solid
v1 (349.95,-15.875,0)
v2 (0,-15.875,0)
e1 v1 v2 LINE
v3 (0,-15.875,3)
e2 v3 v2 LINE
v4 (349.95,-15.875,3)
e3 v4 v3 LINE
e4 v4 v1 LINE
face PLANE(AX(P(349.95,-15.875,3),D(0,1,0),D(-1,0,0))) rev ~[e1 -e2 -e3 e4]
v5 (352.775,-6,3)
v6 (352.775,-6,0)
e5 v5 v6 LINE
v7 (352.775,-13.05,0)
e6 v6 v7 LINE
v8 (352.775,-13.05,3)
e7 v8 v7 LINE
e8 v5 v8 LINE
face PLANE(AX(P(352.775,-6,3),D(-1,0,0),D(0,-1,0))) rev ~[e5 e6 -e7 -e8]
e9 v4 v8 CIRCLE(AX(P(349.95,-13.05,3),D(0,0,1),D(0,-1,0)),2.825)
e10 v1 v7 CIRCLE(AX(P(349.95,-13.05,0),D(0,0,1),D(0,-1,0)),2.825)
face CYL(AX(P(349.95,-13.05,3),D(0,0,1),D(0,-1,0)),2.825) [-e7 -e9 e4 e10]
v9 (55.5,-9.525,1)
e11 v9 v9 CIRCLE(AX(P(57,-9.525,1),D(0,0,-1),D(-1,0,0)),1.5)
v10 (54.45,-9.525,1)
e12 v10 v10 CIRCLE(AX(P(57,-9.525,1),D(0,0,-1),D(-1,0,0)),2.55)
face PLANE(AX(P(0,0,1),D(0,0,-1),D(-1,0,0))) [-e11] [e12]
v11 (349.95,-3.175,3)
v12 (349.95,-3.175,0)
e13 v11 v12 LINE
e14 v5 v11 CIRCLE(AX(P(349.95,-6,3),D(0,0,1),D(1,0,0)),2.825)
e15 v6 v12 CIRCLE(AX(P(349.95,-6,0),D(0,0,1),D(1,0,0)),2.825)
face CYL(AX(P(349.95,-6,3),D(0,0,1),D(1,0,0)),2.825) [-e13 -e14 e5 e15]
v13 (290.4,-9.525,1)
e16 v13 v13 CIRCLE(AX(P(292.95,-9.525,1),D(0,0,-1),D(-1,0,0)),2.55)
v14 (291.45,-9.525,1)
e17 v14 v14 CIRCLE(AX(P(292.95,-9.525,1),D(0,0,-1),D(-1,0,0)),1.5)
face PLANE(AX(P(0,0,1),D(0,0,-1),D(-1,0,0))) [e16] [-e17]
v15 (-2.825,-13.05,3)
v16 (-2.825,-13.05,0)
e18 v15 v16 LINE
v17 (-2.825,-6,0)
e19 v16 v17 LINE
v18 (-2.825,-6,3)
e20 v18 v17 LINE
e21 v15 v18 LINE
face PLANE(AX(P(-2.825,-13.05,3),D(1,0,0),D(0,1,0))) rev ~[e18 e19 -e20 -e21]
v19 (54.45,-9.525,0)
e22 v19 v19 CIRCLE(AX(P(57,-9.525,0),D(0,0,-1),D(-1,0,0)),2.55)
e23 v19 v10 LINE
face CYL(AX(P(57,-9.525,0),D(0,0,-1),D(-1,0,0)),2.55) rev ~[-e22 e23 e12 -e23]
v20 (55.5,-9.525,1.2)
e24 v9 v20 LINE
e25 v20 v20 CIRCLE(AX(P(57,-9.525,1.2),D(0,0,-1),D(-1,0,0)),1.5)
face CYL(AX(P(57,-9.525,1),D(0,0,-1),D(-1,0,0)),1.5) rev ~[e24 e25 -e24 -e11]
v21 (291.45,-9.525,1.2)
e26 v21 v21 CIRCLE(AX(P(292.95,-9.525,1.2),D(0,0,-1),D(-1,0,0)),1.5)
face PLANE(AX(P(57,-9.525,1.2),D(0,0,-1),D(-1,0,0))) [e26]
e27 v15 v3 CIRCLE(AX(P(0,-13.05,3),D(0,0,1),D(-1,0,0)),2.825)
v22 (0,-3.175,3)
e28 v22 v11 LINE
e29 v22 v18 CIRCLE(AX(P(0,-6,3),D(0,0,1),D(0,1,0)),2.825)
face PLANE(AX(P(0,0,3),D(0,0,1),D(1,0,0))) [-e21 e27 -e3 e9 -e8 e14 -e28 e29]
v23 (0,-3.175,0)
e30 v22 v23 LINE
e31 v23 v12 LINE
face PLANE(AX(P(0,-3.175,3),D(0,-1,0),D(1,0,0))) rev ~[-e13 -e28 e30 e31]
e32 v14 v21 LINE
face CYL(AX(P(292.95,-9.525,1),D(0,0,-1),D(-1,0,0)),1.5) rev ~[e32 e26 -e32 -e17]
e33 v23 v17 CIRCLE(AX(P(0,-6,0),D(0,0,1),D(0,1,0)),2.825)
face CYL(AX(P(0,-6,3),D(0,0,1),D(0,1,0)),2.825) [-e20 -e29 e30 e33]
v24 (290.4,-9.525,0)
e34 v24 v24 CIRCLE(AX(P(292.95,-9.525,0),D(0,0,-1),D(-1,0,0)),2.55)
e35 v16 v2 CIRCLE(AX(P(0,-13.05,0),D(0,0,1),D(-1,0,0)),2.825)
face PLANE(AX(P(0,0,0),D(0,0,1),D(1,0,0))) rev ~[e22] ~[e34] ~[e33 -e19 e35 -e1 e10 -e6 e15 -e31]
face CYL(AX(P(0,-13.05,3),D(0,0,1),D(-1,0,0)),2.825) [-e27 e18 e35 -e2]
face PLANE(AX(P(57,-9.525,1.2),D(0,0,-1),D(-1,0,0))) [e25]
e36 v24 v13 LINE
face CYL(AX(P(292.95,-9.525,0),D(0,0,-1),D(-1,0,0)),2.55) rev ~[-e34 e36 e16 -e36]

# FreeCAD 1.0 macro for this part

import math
import FreeCAD as App
import Part
import Sketcher

doc = App.newDocument("Part")
params = doc.addObject("Spreadsheet::Sheet", "Params")
for row, (alias, value) in enumerate([
    ("sketch1_radius", "3 mm"),
    ("sketch1_width", "349.95 mm"),
    ("sketch1_height", "7.05 mm"),
    ("pad1_length", "3 mm"),
    ("sketch2_diameter", "5 mm"),
    ("pocket1_length", "1 mm"),
    ("sketch3_diameter", "3 mm"),
    ("pocket2_length", "0.2 mm"),
    ("sketch4_radius", "3 mm"),
    ("sketch4_width", "349.95 mm"),
    ("sketch4_height", "7.05 mm"),
    ("pad2_length", "3 mm"),
    ("sketch5_width", "349.95 mm"),
    ("sketch5_height", "7.05 mm"),
    ("pocket3_length", "10 mm"),
    ("sketch6_diameter", "5.1 mm"),
    ("sketch6_diameter2", "3 mm"),
    ("pocket4_length", "1 mm"),
], start=1):
    params.set(f"A{row}", alias)
    params.set(f"B{row}", "=" + value)
    params.setAlias(f"B{row}", alias)

body = doc.addObject("PartDesign::Body", "Body")

# Sketch on XY plane
sketch1 = doc.addObject("Sketcher::SketchObject", "Sketch")
body.addObject(sketch1)
sketch1.AttachmentSupport = (doc.XY_Plane, [""])
sketch1.MapMode = "FlatFace"
sketch1.addGeometry([
    Part.LineSegment(App.Vector(349.9, -3, 0), App.Vector(0, -3, 0)),  # 0
    Part.ArcOfCircle(Part.Circle(App.Vector(0, -6, 0), App.Vector(0, 0, 1), 3), math.radians(90), math.radians(180)),  # 1
    Part.LineSegment(App.Vector(-3, -6, 0), App.Vector(-3, -13.1, 0)),  # 2
    Part.ArcOfCircle(Part.Circle(App.Vector(0, -13.1, 0), App.Vector(0, 0, 1), 3), math.radians(180), math.radians(270)),  # 3
    Part.LineSegment(App.Vector(0, -16.1, 0), App.Vector(349.9, -16.1, 0)),  # 4
    Part.ArcOfCircle(Part.Circle(App.Vector(349.9, -13.1, 0), App.Vector(0, 0, 1), 3), math.radians(-90), math.radians(0)),  # 5
    Part.LineSegment(App.Vector(352.9, -13.1, 0), App.Vector(352.9, -6, 0)),  # 6
    Part.ArcOfCircle(Part.Circle(App.Vector(349.9, -6, 0), App.Vector(0, 0, 1), 3), math.radians(0), math.radians(90)),  # 7
], False)
sketch1.addConstraint([
    Sketcher.Constraint("Tangent", 0, 2, 1, 1),
    Sketcher.Constraint("Tangent", 1, 2, 2, 1),
    Sketcher.Constraint("Tangent", 2, 2, 3, 1),
    Sketcher.Constraint("Tangent", 3, 2, 4, 1),
    Sketcher.Constraint("Tangent", 4, 2, 5, 1),
    Sketcher.Constraint("Tangent", 5, 2, 6, 1),
    Sketcher.Constraint("Tangent", 6, 2, 7, 1),
    Sketcher.Constraint("Tangent", 7, 2, 0, 1),
    Sketcher.Constraint("Horizontal", 0),
    Sketcher.Constraint("Vertical", 2),
    Sketcher.Constraint("Horizontal", 4),
    Sketcher.Constraint("Vertical", 6),
    Sketcher.Constraint("Equal", 1, 3),
    Sketcher.Constraint("Equal", 3, 5),
    Sketcher.Constraint("Equal", 5, 7),
    Sketcher.Constraint("PointOnObject", 1, 3, -2),
    Sketcher.Constraint("Radius", 1, 3.0),
    Sketcher.Constraint("DistanceY", 0, 2, -1, 1, 3.0),
    Sketcher.Constraint("DistanceX", 0, 2, 0, 1, 349.95),
    Sketcher.Constraint("DistanceY", 2, 2, 2, 1, 7.05),
])
sketch1.setExpression("Constraints[16]", "Params.sketch1_radius")
sketch1.setExpression("Constraints[18]", "Params.sketch1_width")
sketch1.setExpression("Constraints[19]", "Params.sketch1_height")
pad1 = doc.addObject("PartDesign::Pad", "Pad")
body.addObject(pad1)
pad1.Profile = sketch1
pad1.setExpression("Length", "Params.pad1_length")

# Sketch on XY plane
sketch2 = doc.addObject("Sketcher::SketchObject", "Sketch001")
body.addObject(sketch2)
sketch2.AttachmentSupport = (doc.XY_Plane, [""])
sketch2.MapMode = "FlatFace"
sketch2.addGeometry([
    Part.Circle(App.Vector(292.9, -9.5, 0), App.Vector(0, 0, 1), 2.5),
    Part.Circle(App.Vector(57, -9.5, 0), App.Vector(0, 0, 1), 2.5),
], False)
sketch2.addConstraint([
    Sketcher.Constraint("Equal", 0, 1),
    Sketcher.Constraint("Horizontal", 0, 3, 1, 3),
    Sketcher.Constraint("Diameter", 0, 5.0),
    Sketcher.Constraint("DistanceX", -1, 1, 1, 3, 57.0),
    Sketcher.Constraint("DistanceX", -1, 1, 0, 3, 292.95),
    Sketcher.Constraint("DistanceY", 0, 3, -1, 1, 9.525),
])
sketch2.setExpression("Constraints[2]", "Params.sketch2_diameter")
pocket1 = doc.addObject("PartDesign::Pocket", "Pocket")
body.addObject(pocket1)
pocket1.Profile = sketch2
pocket1.setExpression("Length", "Params.pocket1_length")
pocket1.Reversed = True

# Sketch on XY plane
sketch3 = doc.addObject("Sketcher::SketchObject", "Sketch002")
body.addObject(sketch3)
sketch3.AttachmentSupport = (doc.XY_Plane, [""])
sketch3.MapMode = "FlatFace"
sketch3.AttachmentOffset = App.Placement(App.Vector(0, 0, 1), App.Rotation())
sketch3.addGeometry([
    Part.Circle(App.Vector(292.9, -9.5, 0), App.Vector(0, 0, 1), 1.5),
    Part.Circle(App.Vector(57, -9.5, 0), App.Vector(0, 0, 1), 1.5),
], False)
sketch3.addConstraint([
    Sketcher.Constraint("Equal", 0, 1),
    Sketcher.Constraint("Horizontal", 0, 3, 1, 3),
    Sketcher.Constraint("Diameter", 0, 3.0),
    Sketcher.Constraint("DistanceX", -1, 1, 1, 3, 57.0),
    Sketcher.Constraint("DistanceX", -1, 1, 0, 3, 292.95),
    Sketcher.Constraint("DistanceY", 0, 3, -1, 1, 9.525),
])
sketch3.setExpression("Constraints[2]", "Params.sketch3_diameter")
pocket2 = doc.addObject("PartDesign::Pocket", "Pocket001")
body.addObject(pocket2)
pocket2.Profile = sketch3
pocket2.setExpression("Length", "Params.pocket2_length")
pocket2.Reversed = True

# Sketch on XY plane
sketch4 = doc.addObject("Sketcher::SketchObject", "Sketch003")
body.addObject(sketch4)
sketch4.AttachmentSupport = (doc.XY_Plane, [""])
sketch4.MapMode = "FlatFace"
sketch4.AttachmentOffset = App.Placement(App.Vector(0, 0, 3), App.Rotation())
sketch4.addGeometry([
    Part.LineSegment(App.Vector(349.9, -3, 0), App.Vector(0, -3, 0)),  # 0
    Part.ArcOfCircle(Part.Circle(App.Vector(0, -6, 0), App.Vector(0, 0, 1), 3), math.radians(90), math.radians(180)),  # 1
    Part.LineSegment(App.Vector(-3, -6, 0), App.Vector(-3, -13.1, 0)),  # 2
    Part.ArcOfCircle(Part.Circle(App.Vector(0, -13.1, 0), App.Vector(0, 0, 1), 3), math.radians(180), math.radians(270)),  # 3
    Part.LineSegment(App.Vector(0, -16.1, 0), App.Vector(349.9, -16.1, 0)),  # 4
    Part.ArcOfCircle(Part.Circle(App.Vector(349.9, -13.1, 0), App.Vector(0, 0, 1), 3), math.radians(-90), math.radians(0)),  # 5
    Part.LineSegment(App.Vector(353, -13.1, 0), App.Vector(353, -6, 0)),  # 6
    Part.ArcOfCircle(Part.Circle(App.Vector(349.9, -6, 0), App.Vector(0, 0, 1), 3), math.radians(0), math.radians(90)),  # 7
    Part.LineSegment(App.Vector(352.9, -6, 0), App.Vector(352.9, -13.1, 0)),  # 8
    Part.ArcOfCircle(Part.Circle(App.Vector(349.9, -13.1, 0), App.Vector(0, 0, 1), 3), math.radians(-90), math.radians(0)),  # 9
    Part.LineSegment(App.Vector(349.9, -16.1, 0), App.Vector(0, -16.1, 0)),  # 10
    Part.ArcOfCircle(Part.Circle(App.Vector(0, -13.1, 0), App.Vector(0, 0, 1), 3), math.radians(180), math.radians(270)),  # 11
    Part.LineSegment(App.Vector(-3, -13.1, 0), App.Vector(-3, -6, 0)),  # 12
    Part.ArcOfCircle(Part.Circle(App.Vector(0, -6, 0), App.Vector(0, 0, 1), 3), math.radians(90), math.radians(180)),  # 13
    Part.LineSegment(App.Vector(0, -3, 0), App.Vector(349.9, -3, 0)),  # 14
    Part.ArcOfCircle(Part.Circle(App.Vector(349.9, -6, 0), App.Vector(0, 0, 1), 3), math.radians(0), math.radians(90)),  # 15
], False)
sketch4.addConstraint([
    Sketcher.Constraint("Tangent", 0, 2, 1, 1),
    Sketcher.Constraint("Tangent", 1, 2, 2, 1),
    Sketcher.Constraint("Tangent", 2, 2, 3, 1),
    Sketcher.Constraint("Tangent", 3, 2, 4, 1),
    Sketcher.Constraint("Tangent", 4, 2, 5, 1),
    Sketcher.Constraint("Tangent", 5, 2, 6, 1),
    Sketcher.Constraint("Tangent", 6, 2, 7, 1),
    Sketcher.Constraint("Tangent", 7, 2, 0, 1),
    Sketcher.Constraint("Tangent", 8, 2, 9, 2),
    Sketcher.Constraint("Tangent", 9, 1, 10, 1),
    Sketcher.Constraint("Tangent", 10, 2, 11, 2),
    Sketcher.Constraint("Tangent", 11, 1, 12, 1),
    Sketcher.Constraint("Tangent", 12, 2, 13, 2),
    Sketcher.Constraint("Tangent", 13, 1, 14, 1),
    Sketcher.Constraint("Tangent", 14, 2, 15, 2),
    Sketcher.Constraint("Tangent", 15, 1, 8, 1),
    Sketcher.Constraint("Horizontal", 0),
    Sketcher.Constraint("Vertical", 2),
    Sketcher.Constraint("Horizontal", 4),
    Sketcher.Constraint("Vertical", 6),
    Sketcher.Constraint("Vertical", 8),
    Sketcher.Constraint("Horizontal", 10),
    Sketcher.Constraint("Vertical", 12),
    Sketcher.Constraint("Horizontal", 14),
    Sketcher.Constraint("Coincident", 9, 3, 5, 3),
    Sketcher.Constraint("Coincident", 11, 3, 3, 3),
    Sketcher.Constraint("Coincident", 13, 3, 1, 3),
    Sketcher.Constraint("Equal", 1, 3),
    Sketcher.Constraint("Equal", 3, 5),
    Sketcher.Constraint("Equal", 5, 7),
    Sketcher.Constraint("Equal", 13, 15),
    Sketcher.Constraint("PointOnObject", 1, 3, -2),
    Sketcher.Constraint("Radius", 9, 3.0),
    Sketcher.Constraint("DistanceY", 1, 3, -1, 1, 6.0),
    Sketcher.Constraint("Radius", 1, 3.025),
    Sketcher.Constraint("DistanceX", 0, 2, 0, 1, 349.95),
    Sketcher.Constraint("DistanceY", 2, 2, 2, 1, 7.05),
])
sketch4.setExpression("Constraints[32]", "Params.sketch4_radius")
sketch4.setExpression("Constraints[35]", "Params.sketch4_width")
sketch4.setExpression("Constraints[36]", "Params.sketch4_height")
pad2 = doc.addObject("PartDesign::Pad", "Pad001")
body.addObject(pad2)
pad2.Profile = sketch4
pad2.setExpression("Length", "Params.pad2_length")
pad2.Reversed = True

# Sketch on XY plane
sketch5 = doc.addObject("Sketcher::SketchObject", "Sketch004")
body.addObject(sketch5)
sketch5.AttachmentSupport = (doc.XY_Plane, [""])
sketch5.MapMode = "FlatFace"
sketch5.AttachmentOffset = App.Placement(App.Vector(0, 0, 3), App.Rotation())
sketch5.addGeometry([
    Part.ArcOfCircle(Part.Circle(App.Vector(349.9, -13.1, 0), App.Vector(0, 0, 1), 3), math.radians(-90), math.radians(0)),  # 0
    Part.LineSegment(App.Vector(353, -13.1, 0), App.Vector(353, -6, 0)),  # 1
    Part.ArcOfCircle(Part.Circle(App.Vector(349.9, -6, 0), App.Vector(0, 0, 1), 3), math.radians(0), math.radians(90)),  # 2
    Part.LineSegment(App.Vector(349.9, -3, 0), App.Vector(0, -3, 0)),  # 3
    Part.ArcOfCircle(Part.Circle(App.Vector(0, -6, 0), App.Vector(0, 0, 1), 3), math.radians(90), math.radians(180)),  # 4
    Part.LineSegment(App.Vector(-3, -6, 0), App.Vector(-3, -13.1, 0)),  # 5
    Part.ArcOfCircle(Part.Circle(App.Vector(0, -13.1, 0), App.Vector(0, 0, 1), 3), math.radians(180), math.radians(270)),  # 6
    Part.LineSegment(App.Vector(0, -16.1, 0), App.Vector(349.9, -16.1, 0)),  # 7
    Part.ArcOfCircle(Part.Circle(App.Vector(0, -6, 0), App.Vector(0, 0, 1), 2.8), math.radians(90), math.radians(180)),  # 8
    Part.LineSegment(App.Vector(0, -3.2, 0), App.Vector(349.9, -3.2, 0)),  # 9
    Part.ArcOfCircle(Part.Circle(App.Vector(349.9, -6, 0), App.Vector(0, 0, 1), 2.8), math.radians(0), math.radians(90)),  # 10
    Part.LineSegment(App.Vector(352.8, -6, 0), App.Vector(352.8, -13.1, 0)),  # 11
    Part.ArcOfCircle(Part.Circle(App.Vector(349.9, -13.1, 0), App.Vector(0, 0, 1), 2.8), math.radians(-90), math.radians(0)),  # 12
    Part.LineSegment(App.Vector(349.9, -15.9, 0), App.Vector(0, -15.9, 0)),  # 13
    Part.ArcOfCircle(Part.Circle(App.Vector(0, -13.1, 0), App.Vector(0, 0, 1), 2.8), math.radians(180), math.radians(270)),  # 14
    Part.LineSegment(App.Vector(-2.8, -13.1, 0), App.Vector(-2.8, -6, 0)),  # 15
], False)
sketch5.addConstraint([
    Sketcher.Constraint("Tangent", 0, 2, 1, 1),
    Sketcher.Constraint("Tangent", 1, 2, 2, 1),
    Sketcher.Constraint("Tangent", 2, 2, 3, 1),
    Sketcher.Constraint("Tangent", 3, 2, 4, 1),
    Sketcher.Constraint("Tangent", 4, 2, 5, 1),
    Sketcher.Constraint("Tangent", 5, 2, 6, 1),
    Sketcher.Constraint("Tangent", 6, 2, 7, 1),
    Sketcher.Constraint("Tangent", 7, 2, 0, 1),
    Sketcher.Constraint("Tangent", 8, 1, 9, 1),
    Sketcher.Constraint("Tangent", 9, 2, 10, 2),
    Sketcher.Constraint("Tangent", 10, 1, 11, 1),
    Sketcher.Constraint("Tangent", 11, 2, 12, 2),
    Sketcher.Constraint("Tangent", 12, 1, 13, 1),
    Sketcher.Constraint("Tangent", 13, 2, 14, 2),
    Sketcher.Constraint("Tangent", 14, 1, 15, 1),
    Sketcher.Constraint("Tangent", 15, 2, 8, 2),
    Sketcher.Constraint("Vertical", 1),
    Sketcher.Constraint("Horizontal", 3),
    Sketcher.Constraint("Vertical", 5),
    Sketcher.Constraint("Horizontal", 7),
    Sketcher.Constraint("Horizontal", 9),
    Sketcher.Constraint("Vertical", 11),
    Sketcher.Constraint("Horizontal", 13),
    Sketcher.Constraint("Vertical", 15),
    Sketcher.Constraint("Coincident", 8, 3, 4, 3),
    Sketcher.Constraint("Coincident", 10, 3, 2, 3),
    Sketcher.Constraint("Coincident", 12, 3, 0, 3),
    Sketcher.Constraint("Equal", 0, 2),
    Sketcher.Constraint("Equal", 2, 4),
    Sketcher.Constraint("Equal", 4, 6),
    Sketcher.Constraint("Equal", 12, 14),
    Sketcher.Constraint("PointOnObject", 4, 3, -2),
    Sketcher.Constraint("DistanceY", 8, 1, 3, 2, 0.2),
    Sketcher.Constraint("DistanceY", 2, 3, -1, 1, 6.0),
    Sketcher.Constraint("Radius", 0, 3.025),
    Sketcher.Constraint("DistanceX", 3, 2, 3, 1, 349.95),
    Sketcher.Constraint("DistanceY", 1, 1, 1, 2, 7.05),
])
sketch5.setExpression("Constraints[35]", "Params.sketch5_width")
sketch5.setExpression("Constraints[36]", "Params.sketch5_height")
pocket3 = doc.addObject("PartDesign::Pocket", "Pocket002")
body.addObject(pocket3)
pocket3.Profile = sketch5
pocket3.setExpression("Length", "Params.pocket3_length")

# Sketch on XY plane
sketch6 = doc.addObject("Sketcher::SketchObject", "Sketch005")
body.addObject(sketch6)
sketch6.AttachmentSupport = (doc.XY_Plane, [""])
sketch6.MapMode = "FlatFace"
sketch6.addGeometry([
    Part.Circle(App.Vector(57, -9.5, 0), App.Vector(0, 0, 1), 2.5),
    Part.Circle(App.Vector(57, -9.5, 0), App.Vector(0, 0, 1), 1.5),
    Part.Circle(App.Vector(292.9, -9.5, 0), App.Vector(0, 0, 1), 2.5),
    Part.Circle(App.Vector(292.9, -9.5, 0), App.Vector(0, 0, 1), 1.5),
], False)
sketch6.addConstraint([
    Sketcher.Constraint("Coincident", 1, 3, 0, 3),
    Sketcher.Constraint("Coincident", 3, 3, 2, 3),
    Sketcher.Constraint("Equal", 0, 2),
    Sketcher.Constraint("Equal", 1, 3),
    Sketcher.Constraint("Horizontal", 1, 3, 2, 3),
    Sketcher.Constraint("Diameter", 0, 5.1),
    Sketcher.Constraint("Diameter", 1, 3.0),
    Sketcher.Constraint("DistanceX", -1, 1, 0, 3, 57.0),
    Sketcher.Constraint("DistanceX", -1, 1, 2, 3, 292.95),
    Sketcher.Constraint("DistanceY", 0, 3, -1, 1, 9.525),
])
sketch6.setExpression("Constraints[5]", "Params.sketch6_diameter")
sketch6.setExpression("Constraints[6]", "Params.sketch6_diameter2")
pocket4 = doc.addObject("PartDesign::Pocket", "Pocket003")
body.addObject(pocket4)
pocket4.Profile = sketch6
pocket4.setExpression("Length", "Params.pocket4_length")
pocket4.Reversed = True

doc.recompute()
